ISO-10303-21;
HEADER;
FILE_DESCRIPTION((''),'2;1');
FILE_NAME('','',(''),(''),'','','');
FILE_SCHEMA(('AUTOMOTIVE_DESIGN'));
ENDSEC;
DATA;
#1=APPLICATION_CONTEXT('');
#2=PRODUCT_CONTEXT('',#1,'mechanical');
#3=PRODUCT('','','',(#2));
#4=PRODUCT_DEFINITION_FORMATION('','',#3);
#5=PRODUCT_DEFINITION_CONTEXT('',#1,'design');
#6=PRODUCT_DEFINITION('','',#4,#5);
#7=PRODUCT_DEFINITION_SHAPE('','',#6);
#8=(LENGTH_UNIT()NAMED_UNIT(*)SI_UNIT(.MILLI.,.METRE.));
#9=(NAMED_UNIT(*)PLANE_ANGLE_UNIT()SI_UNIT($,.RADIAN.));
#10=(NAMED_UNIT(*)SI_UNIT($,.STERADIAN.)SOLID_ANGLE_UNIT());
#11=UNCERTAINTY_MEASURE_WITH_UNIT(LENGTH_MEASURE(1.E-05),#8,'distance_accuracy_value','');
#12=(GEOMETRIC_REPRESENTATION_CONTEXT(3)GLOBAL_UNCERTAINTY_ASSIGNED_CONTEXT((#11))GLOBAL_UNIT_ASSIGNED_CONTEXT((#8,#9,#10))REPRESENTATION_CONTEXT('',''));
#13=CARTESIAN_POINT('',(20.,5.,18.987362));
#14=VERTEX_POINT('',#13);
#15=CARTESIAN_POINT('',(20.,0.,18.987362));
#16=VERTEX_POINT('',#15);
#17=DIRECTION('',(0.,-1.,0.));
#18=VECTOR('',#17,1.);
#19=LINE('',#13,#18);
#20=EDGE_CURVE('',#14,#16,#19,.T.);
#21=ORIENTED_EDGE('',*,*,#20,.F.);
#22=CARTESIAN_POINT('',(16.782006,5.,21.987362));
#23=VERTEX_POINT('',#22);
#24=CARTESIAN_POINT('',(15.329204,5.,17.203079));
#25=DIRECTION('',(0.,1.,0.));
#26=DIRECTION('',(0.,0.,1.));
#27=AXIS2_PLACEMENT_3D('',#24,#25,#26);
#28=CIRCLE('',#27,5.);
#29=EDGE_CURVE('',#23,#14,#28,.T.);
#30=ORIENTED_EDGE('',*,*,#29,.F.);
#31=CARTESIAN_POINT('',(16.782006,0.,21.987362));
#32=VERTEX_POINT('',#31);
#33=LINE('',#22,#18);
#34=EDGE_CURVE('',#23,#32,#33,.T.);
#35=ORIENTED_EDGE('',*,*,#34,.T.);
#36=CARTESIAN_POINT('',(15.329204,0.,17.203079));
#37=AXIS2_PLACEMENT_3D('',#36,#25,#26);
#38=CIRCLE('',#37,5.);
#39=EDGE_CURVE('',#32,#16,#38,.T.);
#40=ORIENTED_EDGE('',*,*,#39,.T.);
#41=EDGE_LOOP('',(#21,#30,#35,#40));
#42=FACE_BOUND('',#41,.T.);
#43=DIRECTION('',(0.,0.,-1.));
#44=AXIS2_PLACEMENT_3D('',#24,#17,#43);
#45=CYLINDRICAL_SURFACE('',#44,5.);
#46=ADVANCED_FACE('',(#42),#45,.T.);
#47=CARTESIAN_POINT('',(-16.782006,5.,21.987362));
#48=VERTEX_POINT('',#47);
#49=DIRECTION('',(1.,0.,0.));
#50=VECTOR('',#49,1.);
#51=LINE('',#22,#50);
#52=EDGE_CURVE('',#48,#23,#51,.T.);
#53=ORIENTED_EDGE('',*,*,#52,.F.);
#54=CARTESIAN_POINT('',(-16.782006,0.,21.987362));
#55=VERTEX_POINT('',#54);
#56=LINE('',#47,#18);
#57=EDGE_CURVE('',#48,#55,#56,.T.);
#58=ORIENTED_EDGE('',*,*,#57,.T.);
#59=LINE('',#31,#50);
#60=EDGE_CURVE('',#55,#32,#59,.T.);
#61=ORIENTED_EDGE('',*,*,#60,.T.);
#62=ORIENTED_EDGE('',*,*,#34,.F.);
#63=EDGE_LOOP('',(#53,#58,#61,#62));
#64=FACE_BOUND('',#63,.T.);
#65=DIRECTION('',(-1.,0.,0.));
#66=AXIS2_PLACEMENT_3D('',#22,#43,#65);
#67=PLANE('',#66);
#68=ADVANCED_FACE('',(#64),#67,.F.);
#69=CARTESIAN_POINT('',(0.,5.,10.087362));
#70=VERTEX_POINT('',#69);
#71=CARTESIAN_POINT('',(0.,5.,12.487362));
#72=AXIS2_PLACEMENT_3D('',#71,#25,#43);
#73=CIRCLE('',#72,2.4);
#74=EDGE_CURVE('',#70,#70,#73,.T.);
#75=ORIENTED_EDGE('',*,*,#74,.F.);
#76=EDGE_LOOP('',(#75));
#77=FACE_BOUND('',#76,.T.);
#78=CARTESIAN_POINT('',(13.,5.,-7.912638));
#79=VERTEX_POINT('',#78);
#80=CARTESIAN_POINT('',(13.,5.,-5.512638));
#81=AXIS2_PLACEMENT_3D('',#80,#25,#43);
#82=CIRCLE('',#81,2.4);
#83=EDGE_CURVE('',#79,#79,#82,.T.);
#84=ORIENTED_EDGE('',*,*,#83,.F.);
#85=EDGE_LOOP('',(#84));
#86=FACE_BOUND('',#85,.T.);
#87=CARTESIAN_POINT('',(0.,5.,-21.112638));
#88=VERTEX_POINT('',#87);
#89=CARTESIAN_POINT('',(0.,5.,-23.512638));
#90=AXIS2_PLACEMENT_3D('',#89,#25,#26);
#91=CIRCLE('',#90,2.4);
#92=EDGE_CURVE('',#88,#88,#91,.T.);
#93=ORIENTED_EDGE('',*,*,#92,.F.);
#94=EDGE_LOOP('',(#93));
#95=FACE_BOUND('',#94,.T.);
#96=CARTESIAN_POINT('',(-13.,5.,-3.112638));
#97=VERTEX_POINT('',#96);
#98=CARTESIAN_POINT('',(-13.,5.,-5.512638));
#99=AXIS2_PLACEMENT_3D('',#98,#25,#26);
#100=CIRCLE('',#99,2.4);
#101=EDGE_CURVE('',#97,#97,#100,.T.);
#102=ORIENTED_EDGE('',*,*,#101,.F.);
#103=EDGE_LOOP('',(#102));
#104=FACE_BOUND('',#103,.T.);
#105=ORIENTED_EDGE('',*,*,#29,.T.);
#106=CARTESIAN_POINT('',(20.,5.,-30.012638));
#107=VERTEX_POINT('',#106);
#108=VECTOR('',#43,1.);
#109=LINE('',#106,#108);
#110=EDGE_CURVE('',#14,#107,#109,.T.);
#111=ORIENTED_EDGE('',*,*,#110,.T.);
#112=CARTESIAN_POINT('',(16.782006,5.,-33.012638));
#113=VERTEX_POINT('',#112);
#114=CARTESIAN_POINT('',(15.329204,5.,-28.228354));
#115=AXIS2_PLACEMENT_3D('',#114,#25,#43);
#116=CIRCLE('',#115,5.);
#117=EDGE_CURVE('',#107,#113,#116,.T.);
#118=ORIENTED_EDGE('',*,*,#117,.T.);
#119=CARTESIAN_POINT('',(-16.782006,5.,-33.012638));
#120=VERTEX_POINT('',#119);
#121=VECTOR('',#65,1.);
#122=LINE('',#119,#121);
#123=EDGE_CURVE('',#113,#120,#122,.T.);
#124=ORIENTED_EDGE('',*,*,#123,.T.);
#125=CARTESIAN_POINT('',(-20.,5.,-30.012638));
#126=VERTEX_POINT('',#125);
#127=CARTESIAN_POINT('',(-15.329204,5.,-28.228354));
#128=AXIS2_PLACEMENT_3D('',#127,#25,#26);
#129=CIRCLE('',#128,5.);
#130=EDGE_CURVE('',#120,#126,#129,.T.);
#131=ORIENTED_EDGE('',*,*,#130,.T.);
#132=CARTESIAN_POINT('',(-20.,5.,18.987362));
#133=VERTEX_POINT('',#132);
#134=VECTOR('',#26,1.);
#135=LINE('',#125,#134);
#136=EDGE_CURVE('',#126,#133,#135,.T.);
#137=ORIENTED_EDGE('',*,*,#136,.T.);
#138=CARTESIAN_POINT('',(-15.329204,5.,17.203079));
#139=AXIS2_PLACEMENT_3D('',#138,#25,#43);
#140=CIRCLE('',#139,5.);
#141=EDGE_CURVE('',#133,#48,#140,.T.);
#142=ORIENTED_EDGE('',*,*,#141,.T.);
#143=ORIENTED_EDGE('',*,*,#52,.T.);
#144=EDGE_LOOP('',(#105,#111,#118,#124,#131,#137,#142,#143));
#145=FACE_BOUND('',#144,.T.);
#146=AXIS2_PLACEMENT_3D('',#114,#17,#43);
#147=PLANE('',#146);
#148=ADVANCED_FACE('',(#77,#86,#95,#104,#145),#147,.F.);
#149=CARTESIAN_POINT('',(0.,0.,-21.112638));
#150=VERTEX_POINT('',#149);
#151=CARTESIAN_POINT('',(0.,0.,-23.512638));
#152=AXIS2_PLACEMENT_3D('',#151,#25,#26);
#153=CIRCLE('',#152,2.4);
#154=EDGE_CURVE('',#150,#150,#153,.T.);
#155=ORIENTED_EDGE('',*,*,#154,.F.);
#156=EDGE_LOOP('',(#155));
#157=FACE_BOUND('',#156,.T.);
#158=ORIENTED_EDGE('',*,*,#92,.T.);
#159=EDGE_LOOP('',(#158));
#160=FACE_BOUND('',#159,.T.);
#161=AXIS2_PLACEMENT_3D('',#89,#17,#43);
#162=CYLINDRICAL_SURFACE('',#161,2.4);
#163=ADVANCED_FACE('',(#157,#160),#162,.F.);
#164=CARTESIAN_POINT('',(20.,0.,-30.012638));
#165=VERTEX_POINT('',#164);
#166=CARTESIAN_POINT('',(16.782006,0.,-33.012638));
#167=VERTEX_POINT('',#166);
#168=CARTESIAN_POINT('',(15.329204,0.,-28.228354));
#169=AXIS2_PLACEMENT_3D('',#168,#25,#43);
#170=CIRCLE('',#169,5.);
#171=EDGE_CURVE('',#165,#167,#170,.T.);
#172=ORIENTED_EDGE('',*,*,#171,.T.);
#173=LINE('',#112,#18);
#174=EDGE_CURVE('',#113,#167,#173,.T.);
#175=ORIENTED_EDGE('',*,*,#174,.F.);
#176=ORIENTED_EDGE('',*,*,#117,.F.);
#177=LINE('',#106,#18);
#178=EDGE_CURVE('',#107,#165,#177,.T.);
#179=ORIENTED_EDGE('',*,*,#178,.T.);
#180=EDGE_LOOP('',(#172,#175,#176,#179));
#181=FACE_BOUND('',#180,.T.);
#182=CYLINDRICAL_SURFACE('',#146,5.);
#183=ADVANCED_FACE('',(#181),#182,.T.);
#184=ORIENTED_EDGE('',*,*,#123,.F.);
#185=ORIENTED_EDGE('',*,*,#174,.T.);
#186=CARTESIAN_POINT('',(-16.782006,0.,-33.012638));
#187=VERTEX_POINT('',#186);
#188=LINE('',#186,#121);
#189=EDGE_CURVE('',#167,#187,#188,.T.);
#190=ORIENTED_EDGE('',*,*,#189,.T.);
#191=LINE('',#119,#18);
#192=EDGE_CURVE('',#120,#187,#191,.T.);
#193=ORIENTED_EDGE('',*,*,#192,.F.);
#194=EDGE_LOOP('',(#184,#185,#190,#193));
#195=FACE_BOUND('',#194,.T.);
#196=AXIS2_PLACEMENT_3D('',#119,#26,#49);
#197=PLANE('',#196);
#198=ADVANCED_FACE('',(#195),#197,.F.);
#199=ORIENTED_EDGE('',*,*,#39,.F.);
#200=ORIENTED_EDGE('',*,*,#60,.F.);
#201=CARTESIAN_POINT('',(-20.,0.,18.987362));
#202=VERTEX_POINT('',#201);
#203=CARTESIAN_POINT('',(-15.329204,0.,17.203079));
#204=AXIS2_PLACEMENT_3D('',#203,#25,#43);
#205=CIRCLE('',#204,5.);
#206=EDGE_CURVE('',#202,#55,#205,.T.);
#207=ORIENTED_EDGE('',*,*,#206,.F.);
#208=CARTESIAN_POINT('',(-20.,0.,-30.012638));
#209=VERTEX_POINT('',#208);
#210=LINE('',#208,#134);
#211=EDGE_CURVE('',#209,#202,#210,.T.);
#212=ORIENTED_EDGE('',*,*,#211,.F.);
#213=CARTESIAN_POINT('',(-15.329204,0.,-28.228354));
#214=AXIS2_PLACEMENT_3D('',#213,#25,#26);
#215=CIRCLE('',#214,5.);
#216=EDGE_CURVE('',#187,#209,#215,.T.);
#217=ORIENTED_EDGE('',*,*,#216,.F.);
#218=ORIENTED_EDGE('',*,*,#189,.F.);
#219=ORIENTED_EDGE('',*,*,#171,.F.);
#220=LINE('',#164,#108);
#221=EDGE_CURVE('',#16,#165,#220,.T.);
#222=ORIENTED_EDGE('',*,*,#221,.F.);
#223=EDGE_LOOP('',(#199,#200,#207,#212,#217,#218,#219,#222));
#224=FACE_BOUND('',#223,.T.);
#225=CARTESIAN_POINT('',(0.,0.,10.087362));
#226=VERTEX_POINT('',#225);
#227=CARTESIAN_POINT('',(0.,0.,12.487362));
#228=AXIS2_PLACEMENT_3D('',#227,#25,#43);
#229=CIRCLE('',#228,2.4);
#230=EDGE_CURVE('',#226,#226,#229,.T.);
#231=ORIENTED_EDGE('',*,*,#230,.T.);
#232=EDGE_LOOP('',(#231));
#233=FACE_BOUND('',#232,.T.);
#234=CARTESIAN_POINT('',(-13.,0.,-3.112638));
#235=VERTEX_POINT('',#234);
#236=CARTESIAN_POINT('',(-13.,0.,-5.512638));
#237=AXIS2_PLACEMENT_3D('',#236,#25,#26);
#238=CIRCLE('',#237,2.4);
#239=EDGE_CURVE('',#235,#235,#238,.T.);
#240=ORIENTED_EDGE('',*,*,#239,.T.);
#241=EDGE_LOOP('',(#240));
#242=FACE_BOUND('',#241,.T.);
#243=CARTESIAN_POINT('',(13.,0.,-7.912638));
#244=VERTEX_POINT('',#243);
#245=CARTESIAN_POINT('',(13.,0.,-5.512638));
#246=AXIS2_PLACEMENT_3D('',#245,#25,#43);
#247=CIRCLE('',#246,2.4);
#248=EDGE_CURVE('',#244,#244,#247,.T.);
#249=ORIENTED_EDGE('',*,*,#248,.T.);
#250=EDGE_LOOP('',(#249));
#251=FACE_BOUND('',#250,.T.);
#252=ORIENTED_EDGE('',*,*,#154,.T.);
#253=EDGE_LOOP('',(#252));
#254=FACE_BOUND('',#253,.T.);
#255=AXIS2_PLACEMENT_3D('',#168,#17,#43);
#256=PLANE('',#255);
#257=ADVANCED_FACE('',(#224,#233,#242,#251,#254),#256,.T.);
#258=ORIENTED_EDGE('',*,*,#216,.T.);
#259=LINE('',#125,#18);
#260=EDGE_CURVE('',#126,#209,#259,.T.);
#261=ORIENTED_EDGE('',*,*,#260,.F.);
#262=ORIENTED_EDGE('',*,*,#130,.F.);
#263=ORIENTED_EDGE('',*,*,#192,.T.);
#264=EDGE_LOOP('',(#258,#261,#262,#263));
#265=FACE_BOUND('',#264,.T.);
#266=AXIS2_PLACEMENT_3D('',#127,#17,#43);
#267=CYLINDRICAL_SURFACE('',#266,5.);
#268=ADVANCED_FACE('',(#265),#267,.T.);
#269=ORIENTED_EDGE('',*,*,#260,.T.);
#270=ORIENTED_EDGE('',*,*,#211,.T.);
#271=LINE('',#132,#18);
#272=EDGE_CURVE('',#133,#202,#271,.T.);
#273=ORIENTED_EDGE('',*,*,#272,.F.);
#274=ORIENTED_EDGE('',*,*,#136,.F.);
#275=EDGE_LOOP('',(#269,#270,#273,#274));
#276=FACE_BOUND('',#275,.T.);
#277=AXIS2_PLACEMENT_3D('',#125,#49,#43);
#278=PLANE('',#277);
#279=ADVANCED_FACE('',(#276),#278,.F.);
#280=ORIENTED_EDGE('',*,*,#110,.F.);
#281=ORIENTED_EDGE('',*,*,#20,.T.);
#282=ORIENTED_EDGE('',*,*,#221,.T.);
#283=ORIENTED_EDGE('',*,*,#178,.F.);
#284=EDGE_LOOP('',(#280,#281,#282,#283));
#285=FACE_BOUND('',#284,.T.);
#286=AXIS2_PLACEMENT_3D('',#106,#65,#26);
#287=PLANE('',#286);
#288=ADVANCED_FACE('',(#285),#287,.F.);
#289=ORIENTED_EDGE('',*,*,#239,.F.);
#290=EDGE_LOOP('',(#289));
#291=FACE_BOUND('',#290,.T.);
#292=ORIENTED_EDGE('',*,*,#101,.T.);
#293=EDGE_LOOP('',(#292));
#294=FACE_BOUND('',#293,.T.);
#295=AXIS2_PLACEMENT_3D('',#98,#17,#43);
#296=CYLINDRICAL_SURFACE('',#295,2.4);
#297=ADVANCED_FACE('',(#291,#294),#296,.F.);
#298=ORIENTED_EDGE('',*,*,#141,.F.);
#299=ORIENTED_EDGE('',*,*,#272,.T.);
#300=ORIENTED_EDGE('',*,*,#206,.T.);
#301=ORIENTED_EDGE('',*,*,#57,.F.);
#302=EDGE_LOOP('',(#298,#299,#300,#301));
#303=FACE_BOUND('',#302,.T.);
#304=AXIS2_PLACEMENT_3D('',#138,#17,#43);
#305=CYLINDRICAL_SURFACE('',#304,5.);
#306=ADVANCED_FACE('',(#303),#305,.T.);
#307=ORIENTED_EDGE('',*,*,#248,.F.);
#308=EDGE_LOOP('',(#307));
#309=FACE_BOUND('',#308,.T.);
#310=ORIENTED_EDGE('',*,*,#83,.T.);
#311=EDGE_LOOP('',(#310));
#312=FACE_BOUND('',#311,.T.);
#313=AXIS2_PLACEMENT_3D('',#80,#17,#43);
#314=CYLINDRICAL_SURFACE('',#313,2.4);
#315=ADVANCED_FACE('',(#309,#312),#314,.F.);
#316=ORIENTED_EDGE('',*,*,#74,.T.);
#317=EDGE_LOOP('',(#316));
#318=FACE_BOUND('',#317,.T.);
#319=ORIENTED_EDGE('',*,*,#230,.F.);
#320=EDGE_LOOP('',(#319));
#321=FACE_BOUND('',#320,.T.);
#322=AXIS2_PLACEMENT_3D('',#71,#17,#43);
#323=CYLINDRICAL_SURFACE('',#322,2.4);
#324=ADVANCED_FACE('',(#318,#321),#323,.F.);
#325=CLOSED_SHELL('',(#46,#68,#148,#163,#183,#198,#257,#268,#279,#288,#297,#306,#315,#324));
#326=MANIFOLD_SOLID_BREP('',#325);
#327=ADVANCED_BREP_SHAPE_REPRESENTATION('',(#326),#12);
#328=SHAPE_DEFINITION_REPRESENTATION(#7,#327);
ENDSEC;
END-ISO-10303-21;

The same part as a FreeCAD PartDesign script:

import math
import FreeCAD as App
import Part
import Sketcher

V = App.Vector

doc = App.newDocument("Part")
body = doc.addObject("PartDesign::Body", "Body")

sketch1 = body.newObject("Sketcher::SketchObject", "Sketch")
sketch1.AttachmentSupport = (doc.getObject("XZ_Plane"), [""])
sketch1.MapMode = "FlatFace"
sketch1.addGeometry([
    Part.LineSegment(V(16.8, -33, 0), V(-16.8, -33, 0)),
    Part.ArcOfCircle(Part.Circle(V(-15.3, -28.2, 0), V(0, 0, 1), 5), math.radians(-159), math.radians(-107)),
    Part.LineSegment(V(-20, -30, 0), V(-20, 19, 0)),
    Part.ArcOfCircle(Part.Circle(V(-15.3, 17.2, 0), V(0, 0, 1), 5), math.radians(107), math.radians(159)),
    Part.LineSegment(V(-16.8, 22, 0), V(16.8, 22, 0)),
    Part.ArcOfCircle(Part.Circle(V(15.3, 17.2, 0), V(0, 0, 1), 5), math.radians(21), math.radians(73)),
    Part.LineSegment(V(20, 19, 0), V(20, -30, 0)),
    Part.ArcOfCircle(Part.Circle(V(15.3, -28.2, 0), V(0, 0, 1), 5), math.radians(-73), math.radians(-21)),
    Part.Circle(V(0, 12.5, 0), V(0, 0, 1), 2.4),
    Part.Circle(V(13, -5.5, 0), V(0, 0, 1), 2.4),
    Part.Circle(V(0, -23.5, 0), V(0, 0, 1), 2.4),
    Part.Circle(V(-13, -5.5, 0), V(0, 0, 1), 2.4),
], False)
sketch1.addConstraint([
    Sketcher.Constraint("Coincident", 0, 2, 1, 2),
    Sketcher.Constraint("Coincident", 1, 1, 2, 1),
    Sketcher.Constraint("Coincident", 2, 2, 3, 2),
    Sketcher.Constraint("Coincident", 3, 1, 4, 1),
    Sketcher.Constraint("Coincident", 4, 2, 5, 2),
    Sketcher.Constraint("Coincident", 5, 1, 6, 1),
    Sketcher.Constraint("Coincident", 6, 2, 7, 2),
    Sketcher.Constraint("Coincident", 7, 1, 0, 1),
    Sketcher.Constraint("Horizontal", 0),
    Sketcher.Constraint("Vertical", 2),
    Sketcher.Constraint("Horizontal", 4),
    Sketcher.Constraint("Vertical", 6),
    Sketcher.Constraint("Equal", 1, 3),
    Sketcher.Constraint("Equal", 3, 5),
    Sketcher.Constraint("Equal", 5, 7),
    Sketcher.Constraint("Equal", 8, 9),
    Sketcher.Constraint("Equal", 9, 10),
    Sketcher.Constraint("Equal", 10, 11),
    Sketcher.Constraint("Symmetric", 3, 3, 5, 3, -2),
    Sketcher.Constraint("Symmetric", 1, 3, 7, 3, -2),
    Sketcher.Constraint("Symmetric", 9, 3, 11, 3, -2),
    Sketcher.Constraint("PointOnObject", 8, 3, -2),
    Sketcher.Constraint("PointOnObject", 10, 3, -2),
    Sketcher.Constraint("Horizontal", 2, 2, 5, 1),
    Sketcher.Constraint("Vertical", 1, 3, 3, 3),
    Sketcher.Constraint("Vertical", 0, 2, 3, 1),
    Sketcher.Constraint("Radius", 1, 5.0),
    Sketcher.Constraint("Diameter", 8, 4.8),
    Sketcher.Constraint("DistanceY", 2, 1, 2, 2, 49.0),
    Sketcher.Constraint("DistanceX", -1, 1, 9, 3, 13.0),
    Sketcher.Constraint("DistanceX", 1, 1, -1, 1, 20.0),
    Sketcher.Constraint("DistanceY", 9, 3, 8, 3, 18.0),
    Sketcher.Constraint("DistanceY", 10, 3, 9, 3, 18.0),
    Sketcher.Constraint("DistanceY", 0, 2, 1, 1, 3.0),
    Sketcher.Constraint("DistanceY", 0, 2, 10, 3, 9.5),
    Sketcher.Constraint("DistanceX", 0, 2, 0, 1, 33.564012),
    Sketcher.Constraint("DistanceY", -1, 1, 3, 3, 17.203079),
])
pad1 = body.newObject("PartDesign::Pad", "Pad")
pad1.Profile = sketch1
pad1.Length = 5
pad1.Reversed = True

doc.recompute()
